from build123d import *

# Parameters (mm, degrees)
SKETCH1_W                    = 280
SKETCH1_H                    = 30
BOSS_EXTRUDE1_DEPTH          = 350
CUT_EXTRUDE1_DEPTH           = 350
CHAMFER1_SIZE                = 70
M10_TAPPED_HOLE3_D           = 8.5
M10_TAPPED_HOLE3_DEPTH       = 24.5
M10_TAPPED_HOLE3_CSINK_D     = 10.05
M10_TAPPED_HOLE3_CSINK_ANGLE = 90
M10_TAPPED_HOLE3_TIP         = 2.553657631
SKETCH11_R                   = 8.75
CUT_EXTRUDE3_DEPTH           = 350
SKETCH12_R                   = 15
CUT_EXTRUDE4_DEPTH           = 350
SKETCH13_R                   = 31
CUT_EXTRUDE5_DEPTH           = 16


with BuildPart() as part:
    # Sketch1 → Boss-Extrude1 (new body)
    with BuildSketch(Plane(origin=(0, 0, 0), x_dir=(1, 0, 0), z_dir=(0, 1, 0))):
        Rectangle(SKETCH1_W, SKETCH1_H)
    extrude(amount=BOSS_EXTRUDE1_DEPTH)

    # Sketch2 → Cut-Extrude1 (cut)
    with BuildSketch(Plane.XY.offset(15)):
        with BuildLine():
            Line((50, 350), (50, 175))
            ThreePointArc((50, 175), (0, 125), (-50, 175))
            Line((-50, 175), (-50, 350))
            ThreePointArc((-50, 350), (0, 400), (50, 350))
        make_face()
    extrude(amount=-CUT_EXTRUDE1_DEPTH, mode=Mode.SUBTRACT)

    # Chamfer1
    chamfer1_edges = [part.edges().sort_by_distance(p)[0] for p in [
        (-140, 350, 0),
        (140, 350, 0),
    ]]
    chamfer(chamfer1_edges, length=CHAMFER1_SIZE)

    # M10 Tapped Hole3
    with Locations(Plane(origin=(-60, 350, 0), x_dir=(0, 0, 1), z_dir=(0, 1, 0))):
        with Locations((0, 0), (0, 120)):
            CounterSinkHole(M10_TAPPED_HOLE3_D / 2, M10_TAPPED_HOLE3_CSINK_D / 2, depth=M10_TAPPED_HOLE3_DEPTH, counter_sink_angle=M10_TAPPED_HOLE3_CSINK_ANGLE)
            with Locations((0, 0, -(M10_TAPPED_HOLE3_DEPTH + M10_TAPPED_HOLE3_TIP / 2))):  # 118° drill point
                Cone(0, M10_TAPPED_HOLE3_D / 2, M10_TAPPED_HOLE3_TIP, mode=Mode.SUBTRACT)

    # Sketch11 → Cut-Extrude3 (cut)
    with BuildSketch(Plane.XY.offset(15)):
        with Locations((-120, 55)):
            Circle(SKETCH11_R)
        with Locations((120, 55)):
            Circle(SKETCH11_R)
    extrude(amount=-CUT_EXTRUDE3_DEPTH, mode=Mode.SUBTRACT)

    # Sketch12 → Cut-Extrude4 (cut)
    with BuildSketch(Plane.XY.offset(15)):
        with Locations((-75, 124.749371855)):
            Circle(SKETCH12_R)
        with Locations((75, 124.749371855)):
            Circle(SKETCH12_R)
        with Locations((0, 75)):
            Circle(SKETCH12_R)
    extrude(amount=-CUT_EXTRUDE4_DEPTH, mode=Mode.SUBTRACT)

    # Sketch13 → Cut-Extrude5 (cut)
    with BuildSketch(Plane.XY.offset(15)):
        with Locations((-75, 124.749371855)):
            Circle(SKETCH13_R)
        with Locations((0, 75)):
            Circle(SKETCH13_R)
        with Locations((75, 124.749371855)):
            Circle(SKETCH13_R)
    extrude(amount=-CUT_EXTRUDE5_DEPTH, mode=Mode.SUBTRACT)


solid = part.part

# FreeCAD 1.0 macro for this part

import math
import FreeCAD as App
import Part
import Sketcher

V = App.Vector


def edges_at(feature, points):
    """Names of the edges that pass closest to the given points."""
    edges = feature.Shape.Edges
    near = lambda p: min(range(len(edges)), key=lambda i: edges[i].distToShape(Part.Vertex(*p))[0])
    return sorted({f"Edge{near(p) + 1}" for p in points})

doc = App.newDocument("Part")
body = doc.addObject("PartDesign::Body", "Body")

# Sketch on XZ plane
sketch1 = body.newObject("Sketcher::SketchObject", "Sketch")
sketch1.AttachmentSupport = (doc.getObject("XZ_Plane"), [""])
sketch1.MapMode = "FlatFace"
sketch1.addGeometry([
    Part.LineSegment(V(-140, -15, 0), V(-140, 15, 0)),
    Part.LineSegment(V(-140, 15, 0), V(140, 15, 0)),
    Part.LineSegment(V(140, 15, 0), V(140, -15, 0)),
    Part.LineSegment(V(140, -15, 0), V(-140, -15, 0)),
], False)
sketch1.addConstraint([
    Sketcher.Constraint("Coincident", 0, 2, 1, 1),
    Sketcher.Constraint("Coincident", 1, 2, 2, 1),
    Sketcher.Constraint("Coincident", 2, 2, 3, 1),
    Sketcher.Constraint("Coincident", 3, 2, 0, 1),
    Sketcher.Constraint("Vertical", 0),
    Sketcher.Constraint("Horizontal", 1),
    Sketcher.Constraint("Vertical", 2),
    Sketcher.Constraint("Horizontal", 3),
    Sketcher.Constraint("Symmetric", 0, 2, 2, 2, -1, 1),
    Sketcher.Constraint("DistanceX", 1, 1, 1, 2, 280.0),
    Sketcher.Constraint("DistanceY", 0, 1, 0, 2, 30.0),
])
pad1 = body.newObject("PartDesign::Pad", "Pad")
pad1.Profile = sketch1
pad1.Length = 350
pad1.Reversed = True

# Sketch on XY plane
sketch2 = body.newObject("Sketcher::SketchObject", "Sketch001")
sketch2.AttachmentSupport = (doc.getObject("XY_Plane"), [""])
sketch2.MapMode = "FlatFace"
sketch2.AttachmentOffset = App.Placement(V(0, 0, 15), App.Rotation())
sketch2.addGeometry([
    Part.LineSegment(V(50, 175, 0), V(50, 350, 0)),
    Part.ArcOfCircle(Part.Circle(V(0, 350, 0), V(0, 0, 1), 50), math.radians(0), math.radians(180)),
    Part.LineSegment(V(-50, 350, 0), V(-50, 175, 0)),
    Part.ArcOfCircle(Part.Circle(V(0, 175, 0), V(0, 0, 1), 50), math.radians(180), math.radians(360)),
], False)
sketch2.addConstraint([
    Sketcher.Constraint("Tangent", 0, 2, 1, 1),
    Sketcher.Constraint("Tangent", 1, 2, 2, 1),
    Sketcher.Constraint("Tangent", 2, 2, 3, 1),
    Sketcher.Constraint("Tangent", 3, 2, 0, 1),
    Sketcher.Constraint("Vertical", 0),
    Sketcher.Constraint("Vertical", 2),
    Sketcher.Constraint("PointOnObject", 1, 3, -2),
    Sketcher.Constraint("Radius", 1, 50.0),
    Sketcher.Constraint("DistanceY", 0, 1, 0, 2, 175.0),
    Sketcher.Constraint("DistanceY", -1, 1, 1, 3, 350.0),
])
pocket1 = body.newObject("PartDesign::Pocket", "Pocket")
pocket1.Profile = sketch2
pocket1.Length = 350
doc.recompute()

chamfer = body.newObject("PartDesign::Chamfer", "Chamfer")
chamfer.Base = (pocket1, edges_at(pocket1, [(-140, 350, 0), (140, 350, 0)]))
chamfer.Size = 70

# Sketch on XZ plane
sketch3 = body.newObject("Sketcher::SketchObject", "Sketch002")
sketch3.AttachmentSupport = (doc.getObject("XZ_Plane"), [""])
sketch3.MapMode = "FlatFace"
sketch3.AttachmentOffset = App.Placement(V(0, 0, -350), App.Rotation())
sketch3.addGeometry([
    Part.Circle(V(-60, 0, 0), V(0, 0, 1), 4.2),
    Part.Circle(V(60, 0, 0), V(0, 0, 1), 4.2),
], False)
sketch3.addConstraint([
    Sketcher.Constraint("Equal", 0, 1),
    Sketcher.Constraint("Symmetric", 0, 3, 1, 3, -1, 1),
    Sketcher.Constraint("PointOnObject", 0, 3, -1),
    Sketcher.Constraint("Diameter", 0, 8.5),
    Sketcher.Constraint("DistanceX", 0, 3, -1, 1, 60.0),
])
doc.recompute()
hole = body.newObject("PartDesign::Hole", "Hole")
hole.Profile = sketch3
hole.ThreadType = "None"
hole.Diameter = 8.5
hole.DepthType = "Dimension"
hole.Depth = 24.5
hole.DrillPoint = "Angled"
hole.DrillPointAngle = 118
hole.HoleCutType = "Countersink"
hole.HoleCutDiameter = 10.05
hole.HoleCutCountersinkAngle = 90
hole.Reversed = True

# Sketch on XY plane
sketch4 = body.newObject("Sketcher::SketchObject", "Sketch003")
sketch4.AttachmentSupport = (doc.getObject("XY_Plane"), [""])
sketch4.MapMode = "FlatFace"
sketch4.AttachmentOffset = App.Placement(V(0, 0, 15), App.Rotation())
sketch4.addGeometry([
    Part.Circle(V(-120, 55, 0), V(0, 0, 1), 9),
    Part.Circle(V(120, 55, 0), V(0, 0, 1), 9),
], False)
sketch4.addConstraint([
    Sketcher.Constraint("Equal", 0, 1),
    Sketcher.Constraint("Symmetric", 0, 3, 1, 3, -2),
    Sketcher.Constraint("Diameter", 0, 17.5),
    Sketcher.Constraint("DistanceX", 0, 3, -1, 1, 120.0),
    Sketcher.Constraint("DistanceY", -1, 1, 0, 3, 55.0),
])
pocket2 = body.newObject("PartDesign::Pocket", "Pocket001")
pocket2.Profile = sketch4
pocket2.Length = 350

# Sketch on XY plane
sketch5 = body.newObject("Sketcher::SketchObject", "Sketch004")
sketch5.AttachmentSupport = (doc.getObject("XY_Plane"), [""])
sketch5.MapMode = "FlatFace"
sketch5.AttachmentOffset = App.Placement(V(0, 0, 15), App.Rotation())
sketch5.addGeometry([
    Part.Circle(V(-75, 125, 0), V(0, 0, 1), 15),
    Part.Circle(V(75, 125, 0), V(0, 0, 1), 15),
    Part.Circle(V(0, 75, 0), V(0, 0, 1), 15),
], False)
sketch5.addConstraint([
    Sketcher.Constraint("Equal", 0, 1),
    Sketcher.Constraint("Equal", 1, 2),
    Sketcher.Constraint("Symmetric", 0, 3, 1, 3, -2),
    Sketcher.Constraint("PointOnObject", 2, 3, -2),
    Sketcher.Constraint("Diameter", 0, 30.0),
    Sketcher.Constraint("DistanceX", 0, 3, -1, 1, 75.0),
    Sketcher.Constraint("DistanceY", -1, 1, 2, 3, 75.0),
    Sketcher.Constraint("DistanceY", -1, 1, 0, 3, 124.749372),
])
pocket3 = body.newObject("PartDesign::Pocket", "Pocket002")
pocket3.Profile = sketch5
pocket3.Length = 350

# Sketch on XY plane
sketch6 = body.newObject("Sketcher::SketchObject", "Sketch005")
sketch6.AttachmentSupport = (doc.getObject("XY_Plane"), [""])
sketch6.MapMode = "FlatFace"
sketch6.AttachmentOffset = App.Placement(V(0, 0, 15), App.Rotation())
sketch6.addGeometry([
    Part.Circle(V(-75, 125, 0), V(0, 0, 1), 31),
    Part.Circle(V(0, 75, 0), V(0, 0, 1), 31),
    Part.Circle(V(75, 125, 0), V(0, 0, 1), 31),
], False)
sketch6.addConstraint([
    Sketcher.Constraint("Equal", 0, 1),
    Sketcher.Constraint("Equal", 1, 2),
    Sketcher.Constraint("Symmetric", 0, 3, 2, 3, -2),
    Sketcher.Constraint("PointOnObject", 1, 3, -2),
    Sketcher.Constraint("Diameter", 0, 62.0),
    Sketcher.Constraint("DistanceX", 0, 3, -1, 1, 75.0),
    Sketcher.Constraint("DistanceY", -1, 1, 1, 3, 75.0),
    Sketcher.Constraint("DistanceY", -1, 1, 0, 3, 124.749372),
])
pocket4 = body.newObject("PartDesign::Pocket", "Pocket003")
pocket4.Profile = sketch6
pocket4.Length = 16

doc.recompute()
